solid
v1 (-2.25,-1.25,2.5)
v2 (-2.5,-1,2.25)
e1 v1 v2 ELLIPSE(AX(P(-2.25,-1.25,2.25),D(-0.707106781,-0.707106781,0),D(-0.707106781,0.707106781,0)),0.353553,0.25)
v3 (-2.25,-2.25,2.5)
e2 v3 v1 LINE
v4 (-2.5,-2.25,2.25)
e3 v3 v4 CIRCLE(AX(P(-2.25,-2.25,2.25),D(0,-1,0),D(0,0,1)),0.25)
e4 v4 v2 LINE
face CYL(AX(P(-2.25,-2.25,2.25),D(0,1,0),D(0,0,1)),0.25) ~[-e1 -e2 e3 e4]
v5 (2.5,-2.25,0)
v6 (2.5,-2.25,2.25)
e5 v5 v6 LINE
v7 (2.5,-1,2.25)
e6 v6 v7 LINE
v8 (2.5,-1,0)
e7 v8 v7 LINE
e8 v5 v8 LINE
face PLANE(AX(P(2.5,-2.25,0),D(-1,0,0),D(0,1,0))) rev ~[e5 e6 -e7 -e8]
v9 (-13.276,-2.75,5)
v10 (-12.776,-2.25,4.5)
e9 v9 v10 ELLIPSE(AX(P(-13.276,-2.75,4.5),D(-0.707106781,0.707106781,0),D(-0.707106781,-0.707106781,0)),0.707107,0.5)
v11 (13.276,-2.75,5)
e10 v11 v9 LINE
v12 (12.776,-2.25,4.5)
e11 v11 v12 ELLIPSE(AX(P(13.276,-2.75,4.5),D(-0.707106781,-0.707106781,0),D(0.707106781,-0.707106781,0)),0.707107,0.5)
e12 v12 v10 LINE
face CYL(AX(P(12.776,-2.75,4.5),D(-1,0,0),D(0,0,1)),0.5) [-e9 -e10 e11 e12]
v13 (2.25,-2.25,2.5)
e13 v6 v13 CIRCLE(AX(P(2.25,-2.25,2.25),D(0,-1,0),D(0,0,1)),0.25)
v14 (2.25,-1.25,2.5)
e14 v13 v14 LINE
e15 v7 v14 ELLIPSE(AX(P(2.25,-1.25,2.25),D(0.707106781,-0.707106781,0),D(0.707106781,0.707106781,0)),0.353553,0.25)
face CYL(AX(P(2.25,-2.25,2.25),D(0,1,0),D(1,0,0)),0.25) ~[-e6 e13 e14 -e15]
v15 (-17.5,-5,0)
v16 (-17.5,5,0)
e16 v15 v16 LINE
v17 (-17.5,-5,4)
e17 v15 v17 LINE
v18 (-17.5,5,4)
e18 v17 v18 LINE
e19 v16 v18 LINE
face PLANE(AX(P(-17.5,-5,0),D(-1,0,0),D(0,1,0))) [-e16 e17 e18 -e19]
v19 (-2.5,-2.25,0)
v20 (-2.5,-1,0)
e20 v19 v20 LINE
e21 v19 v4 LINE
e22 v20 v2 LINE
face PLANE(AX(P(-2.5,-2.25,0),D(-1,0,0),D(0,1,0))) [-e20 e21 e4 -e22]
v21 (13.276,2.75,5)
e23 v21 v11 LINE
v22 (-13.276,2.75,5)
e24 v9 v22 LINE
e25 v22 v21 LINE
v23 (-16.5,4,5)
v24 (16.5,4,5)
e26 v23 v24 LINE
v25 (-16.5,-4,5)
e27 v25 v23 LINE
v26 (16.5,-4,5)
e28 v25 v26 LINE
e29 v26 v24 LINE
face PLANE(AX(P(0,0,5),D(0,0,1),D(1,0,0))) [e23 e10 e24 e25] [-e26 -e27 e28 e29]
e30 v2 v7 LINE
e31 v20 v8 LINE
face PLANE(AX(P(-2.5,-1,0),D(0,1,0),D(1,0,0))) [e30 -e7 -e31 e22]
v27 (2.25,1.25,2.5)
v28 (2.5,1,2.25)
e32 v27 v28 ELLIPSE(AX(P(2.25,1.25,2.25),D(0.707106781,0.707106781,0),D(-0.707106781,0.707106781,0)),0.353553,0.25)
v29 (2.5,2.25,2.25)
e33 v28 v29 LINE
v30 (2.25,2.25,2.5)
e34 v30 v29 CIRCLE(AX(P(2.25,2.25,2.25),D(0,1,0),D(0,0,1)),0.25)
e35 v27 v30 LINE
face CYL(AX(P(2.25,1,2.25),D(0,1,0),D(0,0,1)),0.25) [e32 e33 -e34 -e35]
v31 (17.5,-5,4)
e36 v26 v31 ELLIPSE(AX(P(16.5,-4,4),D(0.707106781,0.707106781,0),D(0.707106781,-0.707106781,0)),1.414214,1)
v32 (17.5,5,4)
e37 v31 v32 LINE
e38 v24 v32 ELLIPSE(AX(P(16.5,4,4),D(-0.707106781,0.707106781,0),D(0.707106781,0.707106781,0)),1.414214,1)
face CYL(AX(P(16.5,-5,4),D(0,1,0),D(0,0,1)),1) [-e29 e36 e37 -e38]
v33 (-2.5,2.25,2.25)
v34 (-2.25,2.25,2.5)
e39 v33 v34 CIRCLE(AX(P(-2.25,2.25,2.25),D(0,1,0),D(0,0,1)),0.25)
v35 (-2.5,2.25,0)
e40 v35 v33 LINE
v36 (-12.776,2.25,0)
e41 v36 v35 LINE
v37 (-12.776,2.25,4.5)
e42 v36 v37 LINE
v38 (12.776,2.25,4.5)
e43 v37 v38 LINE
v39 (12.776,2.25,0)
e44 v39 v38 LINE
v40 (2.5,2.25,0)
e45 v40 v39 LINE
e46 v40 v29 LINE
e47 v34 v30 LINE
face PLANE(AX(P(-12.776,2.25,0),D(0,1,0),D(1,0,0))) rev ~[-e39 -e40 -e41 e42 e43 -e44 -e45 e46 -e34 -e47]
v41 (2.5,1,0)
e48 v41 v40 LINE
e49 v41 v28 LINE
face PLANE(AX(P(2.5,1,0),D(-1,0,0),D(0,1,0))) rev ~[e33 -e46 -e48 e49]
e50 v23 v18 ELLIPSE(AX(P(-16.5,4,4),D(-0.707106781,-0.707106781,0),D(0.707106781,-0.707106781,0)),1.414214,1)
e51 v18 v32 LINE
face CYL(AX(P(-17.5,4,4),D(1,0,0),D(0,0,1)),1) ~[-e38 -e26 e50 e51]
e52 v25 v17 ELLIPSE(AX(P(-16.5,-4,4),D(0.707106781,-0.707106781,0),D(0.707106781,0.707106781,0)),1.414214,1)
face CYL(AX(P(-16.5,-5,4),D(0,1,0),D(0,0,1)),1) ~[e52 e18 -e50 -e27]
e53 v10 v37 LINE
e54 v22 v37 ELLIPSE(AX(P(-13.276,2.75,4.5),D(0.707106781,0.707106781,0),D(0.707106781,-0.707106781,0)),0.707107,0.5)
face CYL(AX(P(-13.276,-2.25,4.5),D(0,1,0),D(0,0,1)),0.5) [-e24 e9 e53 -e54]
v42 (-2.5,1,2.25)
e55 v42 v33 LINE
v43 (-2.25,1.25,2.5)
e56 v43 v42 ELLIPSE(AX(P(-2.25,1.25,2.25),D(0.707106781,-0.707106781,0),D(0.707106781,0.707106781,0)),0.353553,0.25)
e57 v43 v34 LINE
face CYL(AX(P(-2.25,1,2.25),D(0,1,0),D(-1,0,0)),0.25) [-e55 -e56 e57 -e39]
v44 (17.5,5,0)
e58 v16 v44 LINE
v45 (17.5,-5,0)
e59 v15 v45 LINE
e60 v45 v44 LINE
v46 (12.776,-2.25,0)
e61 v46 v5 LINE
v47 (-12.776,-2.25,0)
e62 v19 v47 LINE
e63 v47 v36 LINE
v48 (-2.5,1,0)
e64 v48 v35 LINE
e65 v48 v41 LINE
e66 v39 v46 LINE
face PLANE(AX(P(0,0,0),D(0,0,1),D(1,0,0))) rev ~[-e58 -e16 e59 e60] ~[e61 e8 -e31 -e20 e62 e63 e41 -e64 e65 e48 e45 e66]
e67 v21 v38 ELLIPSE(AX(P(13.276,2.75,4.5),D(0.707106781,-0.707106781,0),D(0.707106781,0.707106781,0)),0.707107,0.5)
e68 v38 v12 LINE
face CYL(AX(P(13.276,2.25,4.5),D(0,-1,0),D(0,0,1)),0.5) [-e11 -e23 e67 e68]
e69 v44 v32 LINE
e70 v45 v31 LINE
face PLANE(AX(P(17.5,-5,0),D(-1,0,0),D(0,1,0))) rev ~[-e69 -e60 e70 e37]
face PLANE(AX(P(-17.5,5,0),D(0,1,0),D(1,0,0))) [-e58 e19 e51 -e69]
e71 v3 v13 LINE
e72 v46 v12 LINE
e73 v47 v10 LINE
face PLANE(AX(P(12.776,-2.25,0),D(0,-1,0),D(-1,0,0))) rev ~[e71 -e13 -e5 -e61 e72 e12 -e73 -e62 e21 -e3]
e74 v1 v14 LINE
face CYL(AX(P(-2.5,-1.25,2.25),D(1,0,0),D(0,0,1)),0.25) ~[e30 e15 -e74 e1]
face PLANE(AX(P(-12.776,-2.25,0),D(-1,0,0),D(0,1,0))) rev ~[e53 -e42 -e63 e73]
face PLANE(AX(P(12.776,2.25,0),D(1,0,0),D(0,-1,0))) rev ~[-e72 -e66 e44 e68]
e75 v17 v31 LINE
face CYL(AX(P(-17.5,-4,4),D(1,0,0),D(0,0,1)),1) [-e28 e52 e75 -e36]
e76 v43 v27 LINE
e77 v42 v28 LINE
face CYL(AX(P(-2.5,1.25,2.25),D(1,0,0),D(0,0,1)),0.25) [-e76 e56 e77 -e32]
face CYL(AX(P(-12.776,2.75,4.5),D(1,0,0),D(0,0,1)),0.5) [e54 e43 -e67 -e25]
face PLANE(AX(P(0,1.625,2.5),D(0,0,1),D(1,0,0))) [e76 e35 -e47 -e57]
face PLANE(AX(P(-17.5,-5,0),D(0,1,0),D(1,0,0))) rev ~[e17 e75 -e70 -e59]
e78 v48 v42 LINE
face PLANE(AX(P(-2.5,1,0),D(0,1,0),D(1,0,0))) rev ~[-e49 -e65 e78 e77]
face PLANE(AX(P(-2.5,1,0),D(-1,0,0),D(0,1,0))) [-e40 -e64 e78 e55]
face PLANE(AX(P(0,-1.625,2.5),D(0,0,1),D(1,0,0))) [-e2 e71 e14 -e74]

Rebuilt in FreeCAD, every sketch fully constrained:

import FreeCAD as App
import Part
import Sketcher

V = App.Vector


def edges_at(feature, points):
    """Names of the edges that pass closest to the given points."""
    edges = feature.Shape.Edges
    near = lambda p: min(range(len(edges)), key=lambda i: edges[i].distToShape(Part.Vertex(*p))[0])
    return sorted({f"Edge{near(p) + 1}" for p in points})

doc = App.newDocument("Part")
params = doc.addObject("Spreadsheet::Sheet", "Params")
for row, (alias, value) in enumerate([
    ("sketch1_width", "35 mm"),
    ("sketch1_height", "10 mm"),
    ("sketch1_height2", "4.5 mm"),
    ("pad1_length", "5 mm"),
    ("sketch2_width", "5 mm"),
    ("sketch2_height", "1.25 mm"),
    ("pad2_length", "2.5 mm"),
    ("fillet_radius", "0.25 mm"),
    ("fillet2_radius", "1 mm"),
    ("fillet3_radius", "0.5 mm"),
], start=1):
    params.set(f"A{row}", alias)
    params.set(f"B{row}", "=" + value)
    params.setAlias(f"B{row}", alias)

body = doc.addObject("PartDesign::Body", "Body")

sketch1 = doc.addObject("Sketcher::SketchObject", "Sketch")
body.addObject(sketch1)
sketch1.AttachmentSupport = (doc.XY_Plane, [""])
sketch1.MapMode = "FlatFace"
sketch1.addGeometry(Part.LineSegment(V(-17.5, 5, 0), V(-17.5, -5, 0)), False)
sketch1.addGeometry(Part.LineSegment(V(-17.5, -5, 0), V(17.5, -5, 0)), False)
sketch1.addGeometry(Part.LineSegment(V(17.5, -5, 0), V(17.5, 5, 0)), False)
sketch1.addGeometry(Part.LineSegment(V(17.5, 5, 0), V(-17.5, 5, 0)), False)
sketch1.addGeometry(Part.LineSegment(V(12.8, -2.2, 0), V(-12.8, -2.2, 0)), False)
sketch1.addGeometry(Part.LineSegment(V(-12.8, -2.2, 0), V(-12.8, 2.2, 0)), False)
sketch1.addGeometry(Part.LineSegment(V(-12.8, 2.2, 0), V(12.8, 2.2, 0)), False)
sketch1.addGeometry(Part.LineSegment(V(12.8, 2.2, 0), V(12.8, -2.2, 0)), False)
sketch1.addConstraint(Sketcher.Constraint("Coincident", 0, 2, 1, 1))
sketch1.addConstraint(Sketcher.Constraint("Coincident", 1, 2, 2, 1))
sketch1.addConstraint(Sketcher.Constraint("Coincident", 2, 2, 3, 1))
sketch1.addConstraint(Sketcher.Constraint("Coincident", 3, 2, 0, 1))
sketch1.addConstraint(Sketcher.Constraint("Coincident", 4, 2, 5, 1))
sketch1.addConstraint(Sketcher.Constraint("Coincident", 5, 2, 6, 1))
sketch1.addConstraint(Sketcher.Constraint("Coincident", 6, 2, 7, 1))
sketch1.addConstraint(Sketcher.Constraint("Coincident", 7, 2, 4, 1))
sketch1.addConstraint(Sketcher.Constraint("Vertical", 0))
sketch1.addConstraint(Sketcher.Constraint("Horizontal", 1))
sketch1.addConstraint(Sketcher.Constraint("Vertical", 2))
sketch1.addConstraint(Sketcher.Constraint("Horizontal", 3))
sketch1.addConstraint(Sketcher.Constraint("Horizontal", 4))
sketch1.addConstraint(Sketcher.Constraint("Vertical", 5))
sketch1.addConstraint(Sketcher.Constraint("Horizontal", 6))
sketch1.addConstraint(Sketcher.Constraint("Vertical", 7))
sketch1.addConstraint(Sketcher.Constraint("Symmetric", 0, 2, 2, 2, -1, 1))
sketch1.addConstraint(Sketcher.Constraint("Symmetric", 4, 2, 6, 2, -1, 1))
sketch1.addConstraint(Sketcher.Constraint("DistanceX", 1, 1, 1, 2, 35.0))
sketch1.addConstraint(Sketcher.Constraint("DistanceY", 0, 2, 0, 1, 10.0))
sketch1.addConstraint(Sketcher.Constraint("DistanceY", 5, 1, 5, 2, 4.5))
sketch1.addConstraint(Sketcher.Constraint("DistanceX", 4, 2, 4, 1, 25.552))
sketch1.setExpression("Constraints[18]", "Params.sketch1_width")
sketch1.setExpression("Constraints[19]", "Params.sketch1_height")
sketch1.setExpression("Constraints[20]", "Params.sketch1_height2")
pad1 = doc.addObject("PartDesign::Pad", "Pad")
body.addObject(pad1)
pad1.Profile = sketch1
pad1.setExpression("Length", "Params.pad1_length")

sketch2 = doc.addObject("Sketcher::SketchObject", "Sketch001")
body.addObject(sketch2)
sketch2.AttachmentSupport = (doc.XY_Plane, [""])
sketch2.MapMode = "FlatFace"
sketch2.addGeometry(Part.LineSegment(V(-2.5, 2.2, 0), V(-2.5, 1, 0)), False)
sketch2.addGeometry(Part.LineSegment(V(-2.5, 1, 0), V(2.5, 1, 0)), False)
sketch2.addGeometry(Part.LineSegment(V(2.5, 1, 0), V(2.5, 2.2, 0)), False)
sketch2.addGeometry(Part.LineSegment(V(2.5, 2.2, 0), V(-2.5, 2.2, 0)), False)
sketch2.addGeometry(Part.LineSegment(V(-2.5, -1, 0), V(-2.5, -2.2, 0)), False)
sketch2.addGeometry(Part.LineSegment(V(-2.5, -2.2, 0), V(2.5, -2.2, 0)), False)
sketch2.addGeometry(Part.LineSegment(V(2.5, -2.2, 0), V(2.5, -1, 0)), False)
sketch2.addGeometry(Part.LineSegment(V(2.5, -1, 0), V(-2.5, -1, 0)), False)
sketch2.addConstraint(Sketcher.Constraint("Coincident", 0, 2, 1, 1))
sketch2.addConstraint(Sketcher.Constraint("Coincident", 1, 2, 2, 1))
sketch2.addConstraint(Sketcher.Constraint("Coincident", 2, 2, 3, 1))
sketch2.addConstraint(Sketcher.Constraint("Coincident", 3, 2, 0, 1))
sketch2.addConstraint(Sketcher.Constraint("Coincident", 4, 2, 5, 1))
sketch2.addConstraint(Sketcher.Constraint("Coincident", 5, 2, 6, 1))
sketch2.addConstraint(Sketcher.Constraint("Coincident", 6, 2, 7, 1))
sketch2.addConstraint(Sketcher.Constraint("Coincident", 7, 2, 4, 1))
sketch2.addConstraint(Sketcher.Constraint("Vertical", 0))
sketch2.addConstraint(Sketcher.Constraint("Horizontal", 1))
sketch2.addConstraint(Sketcher.Constraint("Vertical", 2))
sketch2.addConstraint(Sketcher.Constraint("Horizontal", 3))
sketch2.addConstraint(Sketcher.Constraint("Vertical", 4))
sketch2.addConstraint(Sketcher.Constraint("Horizontal", 5))
sketch2.addConstraint(Sketcher.Constraint("Vertical", 6))
sketch2.addConstraint(Sketcher.Constraint("Horizontal", 7))
sketch2.addConstraint(Sketcher.Constraint("Symmetric", 2, 2, 4, 2, -1, 1))
sketch2.addConstraint(Sketcher.Constraint("Symmetric", 0, 2, 6, 2, -1, 1))
sketch2.addConstraint(Sketcher.Constraint("Vertical", 3, 2, 4, 2))
sketch2.addConstraint(Sketcher.Constraint("DistanceX", 1, 1, 1, 2, 5.0))
sketch2.addConstraint(Sketcher.Constraint("DistanceY", -1, 1, 0, 2, 1.0))
sketch2.addConstraint(Sketcher.Constraint("DistanceY", 0, 2, 0, 1, 1.25))
sketch2.setExpression("Constraints[19]", "Params.sketch2_width")
sketch2.setExpression("Constraints[21]", "Params.sketch2_height")
pad2 = doc.addObject("PartDesign::Pad", "Pad001")
body.addObject(pad2)
pad2.Profile = sketch2
pad2.setExpression("Length", "Params.pad2_length")
doc.recompute()

fillet = doc.addObject("PartDesign::Fillet", "Fillet")
body.addObject(fillet)
fillet.Base = (pad2, edges_at(pad2, [
    (2.5, 1.625, 2.5),
    (0, 1, 2.5),
    (-2.5, 1.625, 2.5),
    (2.5, -1.625, 2.5),
    (-2.5, -1.625, 2.5),
    (0, -1, 2.5),
]))
fillet.setExpression("Radius", "Params.fillet_radius")
doc.recompute()

fillet2 = doc.addObject("PartDesign::Fillet", "Fillet001")
body.addObject(fillet2)
fillet2.Base = (fillet, edges_at(fillet, [
    (0, -5, 5),
    (0, 5, 5),
    (17.5, 0, 5),
    (-17.5, 0, 5),
]))
fillet2.setExpression("Radius", "Params.fillet2_radius")
doc.recompute()

fillet3 = doc.addObject("PartDesign::Fillet", "Fillet002")
body.addObject(fillet3)
fillet3.Base = (fillet2, edges_at(fillet2, [
    (0, 2.25, 5),
    (12.776, 0, 5),
    (0, -2.25, 5),
    (-12.776, 0, 5),
]))
fillet3.setExpression("Radius", "Params.fillet3_radius")

doc.recompute()
